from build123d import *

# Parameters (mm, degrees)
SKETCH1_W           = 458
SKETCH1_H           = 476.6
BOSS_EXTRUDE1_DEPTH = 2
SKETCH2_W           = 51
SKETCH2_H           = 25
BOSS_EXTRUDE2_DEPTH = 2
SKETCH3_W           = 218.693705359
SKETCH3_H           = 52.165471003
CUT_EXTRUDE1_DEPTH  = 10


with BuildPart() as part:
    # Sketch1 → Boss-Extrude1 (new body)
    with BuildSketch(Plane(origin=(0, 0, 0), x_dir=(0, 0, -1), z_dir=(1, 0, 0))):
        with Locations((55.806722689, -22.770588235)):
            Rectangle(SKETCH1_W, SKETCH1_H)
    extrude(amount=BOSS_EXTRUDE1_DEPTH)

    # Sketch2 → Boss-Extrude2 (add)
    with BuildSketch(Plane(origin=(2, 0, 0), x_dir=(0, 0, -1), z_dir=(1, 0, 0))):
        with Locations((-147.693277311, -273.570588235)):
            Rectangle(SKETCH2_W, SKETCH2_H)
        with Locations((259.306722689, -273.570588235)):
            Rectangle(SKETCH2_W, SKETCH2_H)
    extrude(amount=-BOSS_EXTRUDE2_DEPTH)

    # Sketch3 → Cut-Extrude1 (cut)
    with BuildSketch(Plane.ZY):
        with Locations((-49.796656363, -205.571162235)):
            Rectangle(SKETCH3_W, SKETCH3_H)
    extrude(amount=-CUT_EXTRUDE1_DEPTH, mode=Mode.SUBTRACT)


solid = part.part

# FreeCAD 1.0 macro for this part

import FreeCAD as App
import Part
import Sketcher
Q = App.Units.Quantity


def add_polygon(sketch, points):
    """Adds a closed chain of lines whose ends are joined by coincident constraints."""
    first, n = sketch.GeometryCount, len(points)
    for a, b in zip(points, points[1:] + points[:1]):
        sketch.addGeometry(Part.LineSegment(App.Vector(*a, 0), App.Vector(*b, 0)), False)
    for i in range(n):
        sketch.addConstraint(Sketcher.Constraint("Coincident", first + i, 2, first + (i + 1) % n, 1))

doc = App.newDocument("Part")
body = doc.addObject("PartDesign::Body", "Body")

# Sketch on YZ plane
sketch1 = body.newObject("Sketcher::SketchObject", "Sketch")
sketch1.AttachmentSupport = (doc.getObject("YZ_Plane"), [""])
sketch1.MapMode = "FlatFace"
add_polygon(sketch1, [(215.529412, 173.193277), (-261.070588, 173.193277), (-261.070588, -284.806723), (215.529412, -284.806723)])  # lines 0-3
sketch1.addConstraint(Sketcher.Constraint("Horizontal", 0))
sketch1.addConstraint(Sketcher.Constraint("Vertical", 1))
sketch1.addConstraint(Sketcher.Constraint("Horizontal", 2))
sketch1.addConstraint(Sketcher.Constraint("Vertical", 3))
sketch1.addConstraint(Sketcher.Constraint("DistanceY", 1, 2, 1, 1, Q("458 mm")))
sketch1.addConstraint(Sketcher.Constraint("DistanceX", 0, 2, 0, 1, Q("476.6 mm")))
sketch1.addConstraint(Sketcher.Constraint("DistanceX", 0, 2, -1, 1, Q("261.070588 mm")))
sketch1.addConstraint(Sketcher.Constraint("DistanceY", -1, 1, 0, 2, Q("173.193277 mm")))
pad1 = body.newObject("PartDesign::Pad", "Pad")
pad1.Profile = sketch1
pad1.Length = 2

# Sketch on YZ plane
sketch2 = body.newObject("Sketcher::SketchObject", "Sketch001")
sketch2.AttachmentSupport = (doc.getObject("YZ_Plane"), [""])
sketch2.MapMode = "FlatFace"
sketch2.AttachmentOffset = App.Placement(App.Vector(0, 0, 2), App.Rotation())
add_polygon(sketch2, [(-261.070588, 173.193277), (-286.070588, 173.193277), (-286.070588, 122.193277), (-261.070588, 122.193277)])  # lines 0-3
add_polygon(sketch2, [(-261.070588, -233.806723), (-286.070588, -233.806723), (-286.070588, -284.806723), (-261.070588, -284.806723)])  # lines 4-7
sketch2.addConstraint(Sketcher.Constraint("Horizontal", 0))
sketch2.addConstraint(Sketcher.Constraint("Vertical", 1))
sketch2.addConstraint(Sketcher.Constraint("Horizontal", 2))
sketch2.addConstraint(Sketcher.Constraint("Vertical", 3))
sketch2.addConstraint(Sketcher.Constraint("Horizontal", 4))
sketch2.addConstraint(Sketcher.Constraint("Vertical", 5))
sketch2.addConstraint(Sketcher.Constraint("Horizontal", 6))
sketch2.addConstraint(Sketcher.Constraint("Vertical", 7))
sketch2.addConstraint(Sketcher.Constraint("Vertical", 1, 2, 4, 2))
sketch2.addConstraint(Sketcher.Constraint("Vertical", 3, 2, 6, 2))
sketch2.addConstraint(Sketcher.Constraint("Equal", 3, 5))
sketch2.addConstraint(Sketcher.Constraint("DistanceX", 0, 2, 0, 1, Q("25 mm")))
sketch2.addConstraint(Sketcher.Constraint("DistanceY", 1, 2, 1, 1, Q("51 mm")))
sketch2.addConstraint(Sketcher.Constraint("DistanceY", 4, 2, 1, 2, Q("356 mm")))
sketch2.addConstraint(Sketcher.Constraint("DistanceX", 0, 2, -1, 1, Q("286.070588 mm")))
sketch2.addConstraint(Sketcher.Constraint("DistanceY", -1, 1, 0, 2, Q("173.193277 mm")))
pad2 = body.newObject("PartDesign::Pad", "Pad001")
pad2.Profile = sketch2
pad2.Length = 2
pad2.Reversed = True

# Sketch on YZ plane
sketch3 = body.newObject("Sketcher::SketchObject", "Sketch002")
sketch3.AttachmentSupport = (doc.getObject("YZ_Plane"), [""])
sketch3.MapMode = "FlatFace"
add_polygon(sketch3, [(-179.488427, -159.143509), (-231.653898, -159.143509), (-231.653898, 59.550196), (-179.488427, 59.550196)])  # lines 0-3
sketch3.addConstraint(Sketcher.Constraint("Horizontal", 0))
sketch3.addConstraint(Sketcher.Constraint("Vertical", 1))
sketch3.addConstraint(Sketcher.Constraint("Horizontal", 2))
sketch3.addConstraint(Sketcher.Constraint("Vertical", 3))
sketch3.addConstraint(Sketcher.Constraint("DistanceX", 0, 2, 0, 1, Q("52.165471 mm")))
sketch3.addConstraint(Sketcher.Constraint("DistanceY", 1, 1, 1, 2, Q("218.693705 mm")))
sketch3.addConstraint(Sketcher.Constraint("DistanceY", 0, 2, -1, 1, Q("159.143509 mm")))
sketch3.addConstraint(Sketcher.Constraint("DistanceX", 0, 2, -1, 1, Q("231.653898 mm")))
pocket1 = body.newObject("PartDesign::Pocket", "Pocket")
pocket1.Profile = sketch3
pocket1.Length = 10
pocket1.Reversed = True

doc.recompute()
